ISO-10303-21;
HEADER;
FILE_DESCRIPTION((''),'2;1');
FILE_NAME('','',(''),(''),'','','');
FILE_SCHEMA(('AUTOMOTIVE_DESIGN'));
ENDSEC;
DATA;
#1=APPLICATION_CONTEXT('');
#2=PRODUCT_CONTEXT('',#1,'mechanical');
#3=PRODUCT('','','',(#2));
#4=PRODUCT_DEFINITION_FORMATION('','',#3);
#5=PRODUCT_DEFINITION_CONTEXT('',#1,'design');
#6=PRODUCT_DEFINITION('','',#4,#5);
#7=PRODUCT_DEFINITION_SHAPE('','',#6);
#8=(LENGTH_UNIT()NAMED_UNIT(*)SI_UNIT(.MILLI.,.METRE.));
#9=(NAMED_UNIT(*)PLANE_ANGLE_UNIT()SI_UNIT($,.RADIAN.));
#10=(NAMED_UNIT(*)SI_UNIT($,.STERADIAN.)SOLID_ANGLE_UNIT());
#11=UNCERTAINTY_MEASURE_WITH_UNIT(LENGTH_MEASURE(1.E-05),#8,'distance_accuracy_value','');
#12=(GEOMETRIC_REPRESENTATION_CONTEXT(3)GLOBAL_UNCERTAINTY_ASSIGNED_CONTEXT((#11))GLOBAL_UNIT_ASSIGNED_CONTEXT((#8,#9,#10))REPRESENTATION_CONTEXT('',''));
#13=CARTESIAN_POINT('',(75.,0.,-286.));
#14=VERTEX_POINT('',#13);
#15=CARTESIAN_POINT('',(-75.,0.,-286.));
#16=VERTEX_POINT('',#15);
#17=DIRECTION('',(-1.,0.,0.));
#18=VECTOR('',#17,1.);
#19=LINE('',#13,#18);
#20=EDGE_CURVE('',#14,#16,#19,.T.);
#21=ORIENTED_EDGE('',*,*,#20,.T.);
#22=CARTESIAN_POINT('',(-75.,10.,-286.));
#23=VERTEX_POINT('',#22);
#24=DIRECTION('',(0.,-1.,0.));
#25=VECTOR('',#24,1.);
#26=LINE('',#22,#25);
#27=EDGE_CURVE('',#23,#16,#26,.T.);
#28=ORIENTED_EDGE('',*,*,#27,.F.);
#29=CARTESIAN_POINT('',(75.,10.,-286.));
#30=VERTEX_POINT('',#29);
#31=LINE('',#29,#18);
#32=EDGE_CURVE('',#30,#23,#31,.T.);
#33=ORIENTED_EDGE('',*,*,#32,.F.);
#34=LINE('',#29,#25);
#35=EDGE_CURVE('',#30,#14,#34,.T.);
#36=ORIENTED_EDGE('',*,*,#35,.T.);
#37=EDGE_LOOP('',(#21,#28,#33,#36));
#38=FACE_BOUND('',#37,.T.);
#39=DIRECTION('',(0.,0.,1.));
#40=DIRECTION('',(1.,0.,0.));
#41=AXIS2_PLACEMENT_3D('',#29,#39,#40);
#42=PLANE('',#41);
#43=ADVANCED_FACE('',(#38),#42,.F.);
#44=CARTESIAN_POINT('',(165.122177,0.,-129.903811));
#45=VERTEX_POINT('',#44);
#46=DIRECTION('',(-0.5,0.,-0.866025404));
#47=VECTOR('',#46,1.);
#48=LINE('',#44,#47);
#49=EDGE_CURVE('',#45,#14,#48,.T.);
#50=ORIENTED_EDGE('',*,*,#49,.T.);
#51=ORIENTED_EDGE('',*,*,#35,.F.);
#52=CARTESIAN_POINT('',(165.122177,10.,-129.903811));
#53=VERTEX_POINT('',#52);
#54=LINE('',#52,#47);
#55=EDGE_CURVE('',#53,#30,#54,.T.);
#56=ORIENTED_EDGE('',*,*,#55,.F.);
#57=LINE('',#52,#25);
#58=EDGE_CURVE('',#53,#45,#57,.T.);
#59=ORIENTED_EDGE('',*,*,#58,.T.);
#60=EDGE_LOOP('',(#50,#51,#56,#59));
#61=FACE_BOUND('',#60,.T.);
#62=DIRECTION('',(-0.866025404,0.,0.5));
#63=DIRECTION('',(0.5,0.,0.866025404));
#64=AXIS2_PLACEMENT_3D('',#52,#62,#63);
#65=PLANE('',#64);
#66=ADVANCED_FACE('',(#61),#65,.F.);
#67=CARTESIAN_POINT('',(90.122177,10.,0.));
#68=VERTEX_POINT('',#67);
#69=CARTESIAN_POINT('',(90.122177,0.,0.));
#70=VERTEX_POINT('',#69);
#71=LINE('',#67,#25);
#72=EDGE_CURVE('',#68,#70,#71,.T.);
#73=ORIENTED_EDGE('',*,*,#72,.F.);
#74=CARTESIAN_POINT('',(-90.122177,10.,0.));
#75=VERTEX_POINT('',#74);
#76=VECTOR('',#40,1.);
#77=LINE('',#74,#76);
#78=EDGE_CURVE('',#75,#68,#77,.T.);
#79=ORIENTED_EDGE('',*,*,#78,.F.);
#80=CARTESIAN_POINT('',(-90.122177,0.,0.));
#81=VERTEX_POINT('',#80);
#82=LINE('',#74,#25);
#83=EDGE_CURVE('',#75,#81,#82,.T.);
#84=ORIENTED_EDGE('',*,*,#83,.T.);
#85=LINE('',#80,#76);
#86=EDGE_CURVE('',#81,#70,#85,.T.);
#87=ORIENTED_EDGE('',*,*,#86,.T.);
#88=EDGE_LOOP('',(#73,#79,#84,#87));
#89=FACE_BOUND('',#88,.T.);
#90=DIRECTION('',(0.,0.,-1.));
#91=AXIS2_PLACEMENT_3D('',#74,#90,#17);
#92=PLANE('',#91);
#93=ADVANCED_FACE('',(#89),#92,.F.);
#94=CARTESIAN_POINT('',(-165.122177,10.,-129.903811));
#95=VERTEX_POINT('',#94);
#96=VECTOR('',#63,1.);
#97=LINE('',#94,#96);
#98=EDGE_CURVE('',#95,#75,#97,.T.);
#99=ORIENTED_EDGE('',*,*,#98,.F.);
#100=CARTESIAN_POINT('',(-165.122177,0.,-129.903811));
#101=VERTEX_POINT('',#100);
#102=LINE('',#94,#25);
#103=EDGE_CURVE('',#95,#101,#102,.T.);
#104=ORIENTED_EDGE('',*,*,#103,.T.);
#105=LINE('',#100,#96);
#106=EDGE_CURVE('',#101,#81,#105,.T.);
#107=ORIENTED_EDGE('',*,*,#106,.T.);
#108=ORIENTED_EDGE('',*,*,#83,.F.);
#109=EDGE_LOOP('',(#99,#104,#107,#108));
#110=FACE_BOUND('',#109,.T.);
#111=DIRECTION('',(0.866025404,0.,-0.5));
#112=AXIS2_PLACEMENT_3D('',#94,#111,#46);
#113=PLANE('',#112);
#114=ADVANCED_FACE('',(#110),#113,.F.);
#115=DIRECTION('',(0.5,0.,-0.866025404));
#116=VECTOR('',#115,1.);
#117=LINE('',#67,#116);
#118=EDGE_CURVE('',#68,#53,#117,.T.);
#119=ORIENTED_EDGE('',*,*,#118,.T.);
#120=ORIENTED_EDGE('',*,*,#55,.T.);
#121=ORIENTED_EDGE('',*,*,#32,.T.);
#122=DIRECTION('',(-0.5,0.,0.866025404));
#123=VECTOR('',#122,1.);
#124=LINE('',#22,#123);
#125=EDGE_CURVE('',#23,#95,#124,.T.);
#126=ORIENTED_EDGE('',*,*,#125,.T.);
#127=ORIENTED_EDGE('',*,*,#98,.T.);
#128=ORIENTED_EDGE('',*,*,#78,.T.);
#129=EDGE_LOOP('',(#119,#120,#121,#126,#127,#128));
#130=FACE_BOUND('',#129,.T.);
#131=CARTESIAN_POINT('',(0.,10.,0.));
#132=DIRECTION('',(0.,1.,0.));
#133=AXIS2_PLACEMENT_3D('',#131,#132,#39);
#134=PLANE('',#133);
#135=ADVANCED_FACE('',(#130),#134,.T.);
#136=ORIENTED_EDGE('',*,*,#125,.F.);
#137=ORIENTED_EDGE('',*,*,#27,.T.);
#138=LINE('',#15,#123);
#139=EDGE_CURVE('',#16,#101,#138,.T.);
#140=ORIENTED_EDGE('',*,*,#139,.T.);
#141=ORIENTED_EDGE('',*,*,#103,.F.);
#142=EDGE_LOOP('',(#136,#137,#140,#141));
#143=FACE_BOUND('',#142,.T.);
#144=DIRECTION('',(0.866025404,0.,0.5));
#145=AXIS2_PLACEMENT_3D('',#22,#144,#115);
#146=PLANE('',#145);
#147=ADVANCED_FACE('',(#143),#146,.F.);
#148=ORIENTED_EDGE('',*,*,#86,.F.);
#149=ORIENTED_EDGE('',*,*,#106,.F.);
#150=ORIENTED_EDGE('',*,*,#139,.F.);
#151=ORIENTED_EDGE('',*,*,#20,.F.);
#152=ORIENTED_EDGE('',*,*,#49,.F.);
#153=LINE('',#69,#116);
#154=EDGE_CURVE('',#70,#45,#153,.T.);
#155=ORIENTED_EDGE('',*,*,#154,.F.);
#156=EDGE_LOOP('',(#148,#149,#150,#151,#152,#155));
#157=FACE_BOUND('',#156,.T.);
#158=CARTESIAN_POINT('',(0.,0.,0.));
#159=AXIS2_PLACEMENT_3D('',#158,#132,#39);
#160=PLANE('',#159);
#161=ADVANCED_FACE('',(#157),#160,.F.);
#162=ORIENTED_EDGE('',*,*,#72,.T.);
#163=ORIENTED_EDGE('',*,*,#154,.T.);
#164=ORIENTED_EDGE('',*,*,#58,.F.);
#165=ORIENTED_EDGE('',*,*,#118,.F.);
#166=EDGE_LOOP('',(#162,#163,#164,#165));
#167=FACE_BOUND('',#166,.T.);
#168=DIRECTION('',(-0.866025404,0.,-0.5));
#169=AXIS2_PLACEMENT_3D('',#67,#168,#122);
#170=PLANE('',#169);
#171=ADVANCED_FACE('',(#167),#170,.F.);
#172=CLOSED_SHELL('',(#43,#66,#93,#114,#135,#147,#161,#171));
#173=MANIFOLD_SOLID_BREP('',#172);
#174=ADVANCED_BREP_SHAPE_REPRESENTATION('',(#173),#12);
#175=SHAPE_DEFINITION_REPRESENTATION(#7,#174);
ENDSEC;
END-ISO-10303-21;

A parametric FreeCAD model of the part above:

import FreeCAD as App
import Part
import Sketcher
from FreeCAD import Vector
Q = App.Units.Quantity


def add_polygon(sketch, points):
    """Adds a closed chain of lines whose ends are joined by coincident constraints."""
    first, n = sketch.GeometryCount, len(points)
    for a, b in zip(points, points[1:] + points[:1]):
        sketch.addGeometry(Part.LineSegment(App.Vector(*a, 0), App.Vector(*b, 0)), False)
    for i in range(n):
        sketch.addConstraint(Sketcher.Constraint("Coincident", first + i, 2, first + (i + 1) % n, 1))

doc = App.newDocument("Part")
body = doc.addObject("PartDesign::Body", "Body")

sketch1 = body.newObject("Sketcher::SketchObject", "Sketch")
sketch1.AttachmentSupport = (doc.getObject("XZ_Plane"), [""])
sketch1.MapMode = "FlatFace"
add_polygon(sketch1, [(-90, 0), (90, 0), (165, -130), (75, -286), (-75, -286), (-165, -130)])
sketch1.addConstraint([
    Sketcher.Constraint("Horizontal", 0),
    Sketcher.Constraint("Horizontal", 3),
    Sketcher.Constraint("Symmetric", 0, 2, 5, 2, -1, 1),
    Sketcher.Constraint("Symmetric", 1, 2, 4, 2, -2),
    Sketcher.Constraint("Parallel", 1, 4),
    Sketcher.Constraint("Parallel", 2, 5),
    Sketcher.Constraint("DistanceX", 3, 2, 3, 1, 150.0),
    Sketcher.Constraint("Angle", 1, Q("-60 deg")),
    Sketcher.Constraint("Distance", 1, 150.0),
    Sketcher.Constraint("DistanceY", 2, 2, -1, 1, 286.0),
])
pad1 = body.newObject("PartDesign::Pad", "Pad")
pad1.Profile = sketch1
pad1.Length = 10
pad1.Reversed = True

doc.recompute()
